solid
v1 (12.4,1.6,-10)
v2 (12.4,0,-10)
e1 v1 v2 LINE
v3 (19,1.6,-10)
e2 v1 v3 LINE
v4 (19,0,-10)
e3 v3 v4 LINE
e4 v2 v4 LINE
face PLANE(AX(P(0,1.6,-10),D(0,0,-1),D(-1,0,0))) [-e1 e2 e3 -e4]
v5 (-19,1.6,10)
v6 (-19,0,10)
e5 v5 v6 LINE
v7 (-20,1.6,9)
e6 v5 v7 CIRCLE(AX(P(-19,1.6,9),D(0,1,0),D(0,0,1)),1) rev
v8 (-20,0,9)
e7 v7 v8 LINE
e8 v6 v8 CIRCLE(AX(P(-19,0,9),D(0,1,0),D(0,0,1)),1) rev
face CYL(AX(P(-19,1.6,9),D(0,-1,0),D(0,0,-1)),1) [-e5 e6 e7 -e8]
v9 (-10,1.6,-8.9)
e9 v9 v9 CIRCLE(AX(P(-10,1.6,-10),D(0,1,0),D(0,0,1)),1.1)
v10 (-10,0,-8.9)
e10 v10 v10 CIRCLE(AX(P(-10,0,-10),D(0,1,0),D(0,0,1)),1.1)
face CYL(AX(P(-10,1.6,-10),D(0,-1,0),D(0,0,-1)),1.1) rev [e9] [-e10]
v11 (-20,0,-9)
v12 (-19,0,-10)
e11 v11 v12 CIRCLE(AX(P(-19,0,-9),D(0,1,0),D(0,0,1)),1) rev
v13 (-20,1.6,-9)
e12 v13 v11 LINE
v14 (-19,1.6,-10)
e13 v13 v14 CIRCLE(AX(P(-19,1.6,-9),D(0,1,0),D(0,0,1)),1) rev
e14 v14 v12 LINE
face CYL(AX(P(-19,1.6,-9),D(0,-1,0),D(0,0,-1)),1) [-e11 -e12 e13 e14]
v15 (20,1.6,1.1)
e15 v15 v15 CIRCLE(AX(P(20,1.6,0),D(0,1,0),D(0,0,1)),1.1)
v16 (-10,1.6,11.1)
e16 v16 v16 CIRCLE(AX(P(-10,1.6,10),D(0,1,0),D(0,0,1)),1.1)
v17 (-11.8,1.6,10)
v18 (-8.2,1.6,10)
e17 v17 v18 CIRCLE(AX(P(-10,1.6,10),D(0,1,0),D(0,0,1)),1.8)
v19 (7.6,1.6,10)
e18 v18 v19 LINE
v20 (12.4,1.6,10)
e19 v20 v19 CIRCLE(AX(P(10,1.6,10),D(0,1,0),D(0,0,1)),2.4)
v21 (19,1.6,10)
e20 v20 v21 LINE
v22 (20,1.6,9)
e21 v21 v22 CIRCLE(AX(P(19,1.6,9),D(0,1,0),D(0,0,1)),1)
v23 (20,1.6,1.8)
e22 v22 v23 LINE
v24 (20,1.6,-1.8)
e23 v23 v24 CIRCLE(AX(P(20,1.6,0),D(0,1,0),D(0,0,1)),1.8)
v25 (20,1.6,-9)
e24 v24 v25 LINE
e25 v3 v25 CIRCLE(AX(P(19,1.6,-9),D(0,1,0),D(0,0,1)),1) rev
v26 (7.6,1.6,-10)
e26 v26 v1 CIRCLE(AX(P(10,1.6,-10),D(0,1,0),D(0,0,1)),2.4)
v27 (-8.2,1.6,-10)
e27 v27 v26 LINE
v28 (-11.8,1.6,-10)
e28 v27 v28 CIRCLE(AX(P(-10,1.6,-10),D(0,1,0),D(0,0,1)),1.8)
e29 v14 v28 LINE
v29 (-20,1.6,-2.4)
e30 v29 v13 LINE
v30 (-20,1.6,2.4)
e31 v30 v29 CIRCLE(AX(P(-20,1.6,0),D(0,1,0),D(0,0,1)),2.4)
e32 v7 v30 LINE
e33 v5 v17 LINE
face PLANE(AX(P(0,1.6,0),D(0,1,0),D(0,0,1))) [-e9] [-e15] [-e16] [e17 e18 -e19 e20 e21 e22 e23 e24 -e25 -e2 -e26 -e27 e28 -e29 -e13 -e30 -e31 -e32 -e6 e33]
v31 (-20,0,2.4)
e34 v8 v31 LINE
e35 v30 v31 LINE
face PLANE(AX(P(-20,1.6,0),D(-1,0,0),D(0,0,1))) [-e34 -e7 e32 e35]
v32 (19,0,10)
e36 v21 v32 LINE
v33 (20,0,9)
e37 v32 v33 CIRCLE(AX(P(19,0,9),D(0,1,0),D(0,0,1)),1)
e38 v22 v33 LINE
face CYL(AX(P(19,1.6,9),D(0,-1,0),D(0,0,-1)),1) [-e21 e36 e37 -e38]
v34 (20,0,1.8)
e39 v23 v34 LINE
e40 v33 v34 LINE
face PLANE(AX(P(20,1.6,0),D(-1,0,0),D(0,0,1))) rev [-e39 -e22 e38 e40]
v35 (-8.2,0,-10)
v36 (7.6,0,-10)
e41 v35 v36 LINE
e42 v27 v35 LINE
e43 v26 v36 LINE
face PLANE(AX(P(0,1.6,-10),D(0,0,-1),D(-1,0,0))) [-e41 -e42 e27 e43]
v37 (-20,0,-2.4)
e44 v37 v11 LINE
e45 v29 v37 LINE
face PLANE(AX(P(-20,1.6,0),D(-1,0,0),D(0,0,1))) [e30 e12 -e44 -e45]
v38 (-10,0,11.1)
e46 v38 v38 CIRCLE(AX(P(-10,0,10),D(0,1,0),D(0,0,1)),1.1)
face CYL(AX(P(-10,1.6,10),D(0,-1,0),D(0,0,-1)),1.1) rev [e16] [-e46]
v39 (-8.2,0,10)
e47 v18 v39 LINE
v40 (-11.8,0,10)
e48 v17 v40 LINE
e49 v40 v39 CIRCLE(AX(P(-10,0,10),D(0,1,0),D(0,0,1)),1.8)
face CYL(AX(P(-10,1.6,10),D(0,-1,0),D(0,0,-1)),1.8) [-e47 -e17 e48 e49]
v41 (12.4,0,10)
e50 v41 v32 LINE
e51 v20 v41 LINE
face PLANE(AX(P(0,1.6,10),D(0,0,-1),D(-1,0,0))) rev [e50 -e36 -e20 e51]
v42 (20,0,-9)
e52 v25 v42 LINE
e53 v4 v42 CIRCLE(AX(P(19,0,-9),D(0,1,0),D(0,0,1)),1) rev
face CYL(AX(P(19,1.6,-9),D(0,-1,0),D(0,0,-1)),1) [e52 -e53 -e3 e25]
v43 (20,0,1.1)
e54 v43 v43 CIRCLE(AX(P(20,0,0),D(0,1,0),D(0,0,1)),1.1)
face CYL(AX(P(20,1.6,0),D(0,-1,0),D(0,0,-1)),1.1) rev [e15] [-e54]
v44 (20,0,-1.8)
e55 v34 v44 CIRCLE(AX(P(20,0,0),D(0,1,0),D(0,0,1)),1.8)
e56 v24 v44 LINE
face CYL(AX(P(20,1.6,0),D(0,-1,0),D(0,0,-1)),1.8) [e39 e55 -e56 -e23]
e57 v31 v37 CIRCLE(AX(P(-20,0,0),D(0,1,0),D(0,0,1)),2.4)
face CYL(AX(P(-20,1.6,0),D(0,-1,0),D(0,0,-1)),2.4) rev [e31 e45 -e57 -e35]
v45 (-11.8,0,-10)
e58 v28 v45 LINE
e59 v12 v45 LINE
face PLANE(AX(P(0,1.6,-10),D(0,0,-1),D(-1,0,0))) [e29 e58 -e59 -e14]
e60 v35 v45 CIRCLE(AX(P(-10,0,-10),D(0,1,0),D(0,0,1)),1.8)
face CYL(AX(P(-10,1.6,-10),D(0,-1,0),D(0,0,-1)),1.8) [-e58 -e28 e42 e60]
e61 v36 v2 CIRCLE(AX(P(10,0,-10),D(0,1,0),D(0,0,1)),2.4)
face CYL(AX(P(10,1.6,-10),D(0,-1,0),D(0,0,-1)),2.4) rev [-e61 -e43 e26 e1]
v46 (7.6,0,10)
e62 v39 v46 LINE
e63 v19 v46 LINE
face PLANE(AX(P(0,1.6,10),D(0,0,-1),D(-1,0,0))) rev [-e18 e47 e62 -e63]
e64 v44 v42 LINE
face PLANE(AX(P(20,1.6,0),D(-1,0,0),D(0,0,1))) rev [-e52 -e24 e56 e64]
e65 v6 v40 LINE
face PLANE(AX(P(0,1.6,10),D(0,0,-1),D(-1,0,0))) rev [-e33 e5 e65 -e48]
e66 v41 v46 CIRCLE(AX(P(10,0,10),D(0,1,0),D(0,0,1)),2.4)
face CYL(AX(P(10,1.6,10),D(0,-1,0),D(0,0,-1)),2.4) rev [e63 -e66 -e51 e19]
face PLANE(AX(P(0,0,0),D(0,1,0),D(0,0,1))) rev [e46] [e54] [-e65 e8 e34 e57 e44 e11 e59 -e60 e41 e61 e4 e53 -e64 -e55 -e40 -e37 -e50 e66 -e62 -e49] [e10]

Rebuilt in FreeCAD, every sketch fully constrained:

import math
import FreeCAD as App
import Part
import Sketcher
from FreeCAD import Vector

doc = App.newDocument("Part")
body = doc.addObject("PartDesign::Body", "Body")

# Sketch on XZ plane
sketch1 = body.newObject("Sketcher::SketchObject", "Sketch")
sketch1.AttachmentSupport = (doc.getObject("XZ_Plane"), [""])
sketch1.MapMode = "FlatFace"
sketch1.addGeometry([
    Part.ArcOfCircle(Part.Circle(Vector(-10, 10, 0), Vector(0, 0, 1), 1.8), math.radians(0), math.radians(180)),  # 0
    Part.LineSegment(Vector(-8.2, 10, 0), Vector(7.6, 10, 0)),  # 1
    Part.ArcOfCircle(Part.Circle(Vector(10, 10, 0), Vector(0, 0, 1), 2.4), math.radians(180), math.radians(360)),  # 2
    Part.LineSegment(Vector(12.4, 10, 0), Vector(19, 10, 0)),  # 3
    Part.ArcOfCircle(Part.Circle(Vector(19, 9, 0), Vector(0, 0, 1), 1), math.radians(0), math.radians(90)),  # 4
    Part.LineSegment(Vector(20, 9, 0), Vector(20, 1.8, 0)),  # 5
    Part.ArcOfCircle(Part.Circle(Vector(20, 0, 0), Vector(0, 0, 1), 1.8), math.radians(-90), math.radians(90)),  # 6
    Part.LineSegment(Vector(20, -1.8, 0), Vector(20, -9, 0)),  # 7
    Part.ArcOfCircle(Part.Circle(Vector(19, -9, 0), Vector(0, 0, 1), 1), math.radians(-90), math.radians(0)),  # 8
    Part.LineSegment(Vector(19, -10, 0), Vector(12.4, -10, 0)),  # 9
    Part.ArcOfCircle(Part.Circle(Vector(10, -10, 0), Vector(0, 0, 1), 2.4), math.radians(0), math.radians(180)),  # 10
    Part.LineSegment(Vector(7.6, -10, 0), Vector(-8.2, -10, 0)),  # 11
    Part.ArcOfCircle(Part.Circle(Vector(-10, -10, 0), Vector(0, 0, 1), 1.8), math.radians(180), math.radians(360)),  # 12
    Part.LineSegment(Vector(-11.8, -10, 0), Vector(-19, -10, 0)),  # 13
    Part.ArcOfCircle(Part.Circle(Vector(-19, -9, 0), Vector(0, 0, 1), 1), math.radians(-180), math.radians(-90)),  # 14
    Part.LineSegment(Vector(-20, -9, 0), Vector(-20, -2.4, 0)),  # 15
    Part.ArcOfCircle(Part.Circle(Vector(-20, 0, 0), Vector(0, 0, 1), 2.4), math.radians(-90), math.radians(90)),  # 16
    Part.LineSegment(Vector(-20, 2.4, 0), Vector(-20, 9, 0)),  # 17
    Part.ArcOfCircle(Part.Circle(Vector(-19, 9, 0), Vector(0, 0, 1), 1), math.radians(90), math.radians(180)),  # 18
    Part.LineSegment(Vector(-19, 10, 0), Vector(-11.8, 10, 0)),  # 19
    Part.Circle(Vector(-10, 10, 0), Vector(0, 0, 1), 1.1),  # 20
    Part.Circle(Vector(-10, -10, 0), Vector(0, 0, 1), 1.1),  # 21
    Part.Circle(Vector(20, 0, 0), Vector(0, 0, 1), 1.1),  # 22
], False)
sketch1.addConstraint([
    Sketcher.Constraint("Coincident", 0, 1, 1, 1),
    Sketcher.Constraint("Coincident", 1, 2, 2, 1),
    Sketcher.Constraint("Coincident", 2, 2, 3, 1),
    Sketcher.Constraint("Tangent", 3, 2, 4, 2),
    Sketcher.Constraint("Tangent", 4, 1, 5, 1),
    Sketcher.Constraint("Coincident", 5, 2, 6, 2),
    Sketcher.Constraint("Coincident", 6, 1, 7, 1),
    Sketcher.Constraint("Tangent", 7, 2, 8, 2),
    Sketcher.Constraint("Tangent", 8, 1, 9, 1),
    Sketcher.Constraint("Coincident", 9, 2, 10, 1),
    Sketcher.Constraint("Coincident", 10, 2, 11, 1),
    Sketcher.Constraint("Coincident", 11, 2, 12, 2),
    Sketcher.Constraint("Coincident", 12, 1, 13, 1),
    Sketcher.Constraint("Tangent", 13, 2, 14, 2),
    Sketcher.Constraint("Tangent", 14, 1, 15, 1),
    Sketcher.Constraint("Coincident", 15, 2, 16, 1),
    Sketcher.Constraint("Coincident", 16, 2, 17, 1),
    Sketcher.Constraint("Tangent", 17, 2, 18, 2),
    Sketcher.Constraint("Tangent", 18, 1, 19, 1),
    Sketcher.Constraint("Coincident", 19, 2, 0, 2),
    Sketcher.Constraint("Horizontal", 1),
    Sketcher.Constraint("Horizontal", 3),
    Sketcher.Constraint("Vertical", 5),
    Sketcher.Constraint("Vertical", 7),
    Sketcher.Constraint("Horizontal", 9),
    Sketcher.Constraint("Horizontal", 11),
    Sketcher.Constraint("Horizontal", 13),
    Sketcher.Constraint("Vertical", 15),
    Sketcher.Constraint("Vertical", 17),
    Sketcher.Constraint("Horizontal", 19),
    Sketcher.Constraint("Coincident", 20, 3, 0, 3),
    Sketcher.Constraint("Coincident", 21, 3, 12, 3),
    Sketcher.Constraint("Coincident", 22, 3, 6, 3),
    Sketcher.Constraint("Equal", 0, 6),
    Sketcher.Constraint("Equal", 4, 8),
    Sketcher.Constraint("Equal", 2, 10),
    Sketcher.Constraint("Equal", 6, 12),
    Sketcher.Constraint("Equal", 8, 14),
    Sketcher.Constraint("Equal", 10, 16),
    Sketcher.Constraint("Equal", 14, 18),
    Sketcher.Constraint("Equal", 20, 21),
    Sketcher.Constraint("Equal", 21, 22),
    Sketcher.Constraint("Symmetric", 0, 3, 10, 3, -1, 1),
    Sketcher.Constraint("Symmetric", 2, 3, 12, 3, -1, 1),
    Sketcher.Constraint("Symmetric", 4, 3, 14, 3, -1, 1),
    Sketcher.Constraint("Symmetric", 6, 3, 16, 3, -1, 1),
    Sketcher.Constraint("Symmetric", 8, 3, 18, 3, -1, 1),
    Sketcher.Constraint("Symmetric", 0, 3, 2, 3, -2),
    Sketcher.Constraint("Symmetric", 8, 3, 14, 3, -2),
    Sketcher.Constraint("PointOnObject", 6, 3, -1),
    Sketcher.Constraint("Horizontal", 20, 3, 0, 1),
    Sketcher.Constraint("Horizontal", 1, 2, 2, 2),
    Sketcher.Constraint("Horizontal", 9, 2, 10, 2),
    Sketcher.Constraint("Vertical", 22, 3, 4, 1),
    Sketcher.Constraint("Equal", 19, 5),
    Sketcher.Constraint("Radius", 4, 1.0),
    Sketcher.Constraint("Diameter", 20, 2.2),
    Sketcher.Constraint("Radius", 0, 1.8),
    Sketcher.Constraint("Radius", 2, 2.4),
    Sketcher.Constraint("DistanceX", 1, 1, 1, 2, 15.8),
    Sketcher.Constraint("DistanceX", 3, 1, 3, 2, 6.6),
])
pad1 = body.newObject("PartDesign::Pad", "Pad")
pad1.Profile = sketch1
pad1.Length = 1.6
pad1.Reversed = True

doc.recompute()
